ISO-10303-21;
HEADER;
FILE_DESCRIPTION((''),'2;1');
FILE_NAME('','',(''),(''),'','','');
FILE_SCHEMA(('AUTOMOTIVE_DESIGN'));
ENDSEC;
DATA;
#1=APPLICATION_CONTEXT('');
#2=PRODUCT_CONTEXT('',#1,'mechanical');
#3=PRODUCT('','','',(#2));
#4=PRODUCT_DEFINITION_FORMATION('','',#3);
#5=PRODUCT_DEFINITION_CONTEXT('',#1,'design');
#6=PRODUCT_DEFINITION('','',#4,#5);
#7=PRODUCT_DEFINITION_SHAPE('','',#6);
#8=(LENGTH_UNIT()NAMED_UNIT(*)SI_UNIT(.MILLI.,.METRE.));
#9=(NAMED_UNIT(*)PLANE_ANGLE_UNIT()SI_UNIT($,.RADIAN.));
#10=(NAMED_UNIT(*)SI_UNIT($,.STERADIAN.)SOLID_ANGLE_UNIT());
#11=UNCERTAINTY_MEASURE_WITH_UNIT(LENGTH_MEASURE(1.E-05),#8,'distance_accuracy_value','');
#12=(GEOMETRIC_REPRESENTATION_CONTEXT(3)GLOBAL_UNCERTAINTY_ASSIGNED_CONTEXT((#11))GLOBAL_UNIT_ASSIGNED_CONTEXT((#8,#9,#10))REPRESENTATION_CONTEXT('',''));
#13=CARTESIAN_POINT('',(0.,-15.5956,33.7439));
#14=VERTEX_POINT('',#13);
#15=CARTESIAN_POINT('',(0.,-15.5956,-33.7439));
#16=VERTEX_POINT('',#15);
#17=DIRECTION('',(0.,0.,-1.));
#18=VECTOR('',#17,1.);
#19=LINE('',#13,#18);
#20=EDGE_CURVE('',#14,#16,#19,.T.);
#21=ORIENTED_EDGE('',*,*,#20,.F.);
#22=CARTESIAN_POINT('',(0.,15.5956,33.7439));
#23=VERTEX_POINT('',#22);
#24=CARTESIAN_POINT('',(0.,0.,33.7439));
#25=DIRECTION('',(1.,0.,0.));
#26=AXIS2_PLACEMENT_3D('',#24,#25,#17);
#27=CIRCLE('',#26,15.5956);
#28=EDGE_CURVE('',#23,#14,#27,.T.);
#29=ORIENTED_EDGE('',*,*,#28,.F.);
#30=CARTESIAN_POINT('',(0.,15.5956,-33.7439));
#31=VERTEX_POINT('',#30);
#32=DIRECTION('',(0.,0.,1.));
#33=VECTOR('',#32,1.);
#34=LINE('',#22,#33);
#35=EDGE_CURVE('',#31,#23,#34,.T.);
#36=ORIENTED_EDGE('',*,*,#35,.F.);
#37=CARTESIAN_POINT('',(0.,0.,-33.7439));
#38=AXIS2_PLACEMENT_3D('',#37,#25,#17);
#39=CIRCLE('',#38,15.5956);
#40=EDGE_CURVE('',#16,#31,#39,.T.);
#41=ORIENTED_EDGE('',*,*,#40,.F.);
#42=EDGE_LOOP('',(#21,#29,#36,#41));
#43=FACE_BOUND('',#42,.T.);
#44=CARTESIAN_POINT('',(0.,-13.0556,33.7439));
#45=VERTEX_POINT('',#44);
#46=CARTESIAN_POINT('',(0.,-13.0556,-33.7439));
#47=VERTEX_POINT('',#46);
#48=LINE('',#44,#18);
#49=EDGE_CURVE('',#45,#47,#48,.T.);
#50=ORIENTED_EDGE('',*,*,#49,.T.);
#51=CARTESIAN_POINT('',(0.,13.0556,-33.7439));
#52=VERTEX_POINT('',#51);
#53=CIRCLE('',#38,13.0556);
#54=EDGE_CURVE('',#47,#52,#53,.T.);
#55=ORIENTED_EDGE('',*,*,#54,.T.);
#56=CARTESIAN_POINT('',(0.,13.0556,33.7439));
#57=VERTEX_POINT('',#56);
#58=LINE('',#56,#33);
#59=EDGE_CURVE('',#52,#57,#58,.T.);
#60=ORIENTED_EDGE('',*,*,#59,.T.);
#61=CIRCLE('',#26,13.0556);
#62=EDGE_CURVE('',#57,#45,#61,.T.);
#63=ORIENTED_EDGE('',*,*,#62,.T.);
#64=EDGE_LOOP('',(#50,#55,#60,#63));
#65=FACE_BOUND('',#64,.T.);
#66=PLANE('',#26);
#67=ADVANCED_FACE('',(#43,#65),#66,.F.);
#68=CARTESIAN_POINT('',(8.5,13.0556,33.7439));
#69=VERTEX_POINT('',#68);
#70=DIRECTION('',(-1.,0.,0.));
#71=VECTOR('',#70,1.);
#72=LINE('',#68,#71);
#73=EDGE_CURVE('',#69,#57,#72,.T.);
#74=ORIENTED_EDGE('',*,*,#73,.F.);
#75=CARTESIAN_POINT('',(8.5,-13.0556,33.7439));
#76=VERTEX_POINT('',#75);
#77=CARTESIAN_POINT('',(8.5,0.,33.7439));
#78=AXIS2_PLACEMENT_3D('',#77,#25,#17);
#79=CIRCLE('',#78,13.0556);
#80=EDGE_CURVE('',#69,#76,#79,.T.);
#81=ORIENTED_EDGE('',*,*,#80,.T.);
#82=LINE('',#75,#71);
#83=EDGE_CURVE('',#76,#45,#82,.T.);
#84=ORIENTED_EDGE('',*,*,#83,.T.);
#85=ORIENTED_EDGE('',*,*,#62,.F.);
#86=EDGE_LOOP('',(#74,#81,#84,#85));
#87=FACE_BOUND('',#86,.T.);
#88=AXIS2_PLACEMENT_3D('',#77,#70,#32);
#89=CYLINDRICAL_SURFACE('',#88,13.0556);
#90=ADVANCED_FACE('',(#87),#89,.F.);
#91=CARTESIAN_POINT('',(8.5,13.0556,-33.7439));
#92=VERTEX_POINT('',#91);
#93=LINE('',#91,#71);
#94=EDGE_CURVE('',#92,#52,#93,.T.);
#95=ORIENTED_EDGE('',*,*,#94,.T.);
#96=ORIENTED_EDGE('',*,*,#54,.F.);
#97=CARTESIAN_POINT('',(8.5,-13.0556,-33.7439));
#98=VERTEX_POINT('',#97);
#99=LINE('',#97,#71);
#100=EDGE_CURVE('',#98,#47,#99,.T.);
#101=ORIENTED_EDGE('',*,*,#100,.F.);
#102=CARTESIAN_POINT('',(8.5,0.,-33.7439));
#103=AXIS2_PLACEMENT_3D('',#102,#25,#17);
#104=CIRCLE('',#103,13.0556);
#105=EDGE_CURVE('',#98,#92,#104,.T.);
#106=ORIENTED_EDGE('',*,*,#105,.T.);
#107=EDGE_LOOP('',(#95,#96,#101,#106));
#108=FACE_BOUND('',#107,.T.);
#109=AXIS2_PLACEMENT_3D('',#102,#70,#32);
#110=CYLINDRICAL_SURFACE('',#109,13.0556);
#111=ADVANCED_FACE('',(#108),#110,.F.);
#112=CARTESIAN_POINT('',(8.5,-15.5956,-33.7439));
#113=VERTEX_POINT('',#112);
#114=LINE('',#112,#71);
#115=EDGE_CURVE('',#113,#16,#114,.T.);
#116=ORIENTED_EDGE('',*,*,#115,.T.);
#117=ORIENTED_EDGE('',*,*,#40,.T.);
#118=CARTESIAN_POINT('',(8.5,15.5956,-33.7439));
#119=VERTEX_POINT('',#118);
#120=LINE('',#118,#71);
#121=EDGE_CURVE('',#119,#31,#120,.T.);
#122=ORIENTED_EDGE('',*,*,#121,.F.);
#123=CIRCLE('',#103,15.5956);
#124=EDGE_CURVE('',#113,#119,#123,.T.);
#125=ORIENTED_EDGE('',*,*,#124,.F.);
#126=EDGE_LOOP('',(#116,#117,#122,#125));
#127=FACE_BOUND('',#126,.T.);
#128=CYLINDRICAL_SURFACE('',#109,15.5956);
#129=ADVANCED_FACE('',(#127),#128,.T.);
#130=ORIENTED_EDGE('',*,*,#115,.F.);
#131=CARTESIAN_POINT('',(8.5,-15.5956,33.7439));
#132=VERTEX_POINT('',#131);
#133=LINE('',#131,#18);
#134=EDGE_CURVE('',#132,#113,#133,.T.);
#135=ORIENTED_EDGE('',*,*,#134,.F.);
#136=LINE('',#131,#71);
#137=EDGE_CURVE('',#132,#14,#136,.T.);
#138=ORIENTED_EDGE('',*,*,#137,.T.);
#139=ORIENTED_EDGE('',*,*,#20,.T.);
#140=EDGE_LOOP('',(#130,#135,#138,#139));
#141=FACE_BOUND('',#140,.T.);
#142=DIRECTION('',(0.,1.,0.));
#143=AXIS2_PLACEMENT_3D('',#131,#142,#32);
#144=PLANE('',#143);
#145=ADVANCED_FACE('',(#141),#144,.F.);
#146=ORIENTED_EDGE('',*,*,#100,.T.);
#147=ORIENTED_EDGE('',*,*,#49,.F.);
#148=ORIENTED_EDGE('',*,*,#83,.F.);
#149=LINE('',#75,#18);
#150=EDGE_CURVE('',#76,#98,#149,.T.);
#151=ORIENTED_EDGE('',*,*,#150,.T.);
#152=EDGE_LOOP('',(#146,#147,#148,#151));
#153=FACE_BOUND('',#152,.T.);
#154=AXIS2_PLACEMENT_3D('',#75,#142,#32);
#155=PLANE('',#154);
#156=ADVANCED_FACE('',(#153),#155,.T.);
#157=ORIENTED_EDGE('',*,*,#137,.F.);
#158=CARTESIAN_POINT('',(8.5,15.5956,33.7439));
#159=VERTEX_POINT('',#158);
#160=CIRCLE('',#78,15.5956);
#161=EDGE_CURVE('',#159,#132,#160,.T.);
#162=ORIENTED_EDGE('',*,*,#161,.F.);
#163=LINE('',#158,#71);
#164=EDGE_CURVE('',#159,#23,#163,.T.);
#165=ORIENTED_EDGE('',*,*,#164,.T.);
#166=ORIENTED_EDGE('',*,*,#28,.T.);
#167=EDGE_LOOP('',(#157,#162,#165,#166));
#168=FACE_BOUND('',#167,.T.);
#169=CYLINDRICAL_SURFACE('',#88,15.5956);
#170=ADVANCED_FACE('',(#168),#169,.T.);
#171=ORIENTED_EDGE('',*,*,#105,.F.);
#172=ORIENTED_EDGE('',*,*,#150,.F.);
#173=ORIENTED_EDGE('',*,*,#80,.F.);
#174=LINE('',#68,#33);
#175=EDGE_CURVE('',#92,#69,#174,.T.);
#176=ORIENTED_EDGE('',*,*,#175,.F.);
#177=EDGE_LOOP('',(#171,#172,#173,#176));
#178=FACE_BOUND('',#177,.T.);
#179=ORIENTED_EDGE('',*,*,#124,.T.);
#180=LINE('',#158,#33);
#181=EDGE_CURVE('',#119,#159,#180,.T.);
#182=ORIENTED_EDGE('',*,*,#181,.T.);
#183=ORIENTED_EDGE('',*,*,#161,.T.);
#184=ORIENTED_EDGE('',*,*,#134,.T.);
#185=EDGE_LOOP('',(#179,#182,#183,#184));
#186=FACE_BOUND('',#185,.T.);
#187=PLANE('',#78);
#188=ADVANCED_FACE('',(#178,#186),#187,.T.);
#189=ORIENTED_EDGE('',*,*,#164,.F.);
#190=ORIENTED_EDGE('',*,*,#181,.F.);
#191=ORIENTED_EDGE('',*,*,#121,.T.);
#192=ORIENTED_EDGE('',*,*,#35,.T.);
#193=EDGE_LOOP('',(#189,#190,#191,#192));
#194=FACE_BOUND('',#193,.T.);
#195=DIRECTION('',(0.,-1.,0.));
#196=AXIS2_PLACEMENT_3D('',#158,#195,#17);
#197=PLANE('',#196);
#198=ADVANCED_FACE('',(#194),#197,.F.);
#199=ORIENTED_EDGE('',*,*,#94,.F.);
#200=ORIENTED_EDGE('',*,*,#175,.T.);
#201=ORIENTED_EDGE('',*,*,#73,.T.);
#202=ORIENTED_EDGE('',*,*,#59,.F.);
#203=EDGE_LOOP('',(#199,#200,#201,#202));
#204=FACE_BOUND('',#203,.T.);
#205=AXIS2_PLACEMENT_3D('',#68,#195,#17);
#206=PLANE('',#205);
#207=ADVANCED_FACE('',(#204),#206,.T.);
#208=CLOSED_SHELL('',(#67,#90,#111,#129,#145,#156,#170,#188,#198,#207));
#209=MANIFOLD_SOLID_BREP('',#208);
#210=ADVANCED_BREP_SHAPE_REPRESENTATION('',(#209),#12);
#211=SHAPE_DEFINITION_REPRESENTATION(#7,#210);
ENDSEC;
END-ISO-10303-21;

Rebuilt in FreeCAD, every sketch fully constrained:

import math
import FreeCAD as App
import Part
import Sketcher

V = App.Vector
Q = App.Units.Quantity

doc = App.newDocument("Part")
body = doc.addObject("PartDesign::Body", "Body")

# Sketch on YZ plane
sketch1 = body.newObject("Sketcher::SketchObject", "Sketch")
sketch1.AttachmentSupport = (doc.getObject("YZ_Plane"), [""])
sketch1.MapMode = "FlatFace"
sketch1.addGeometry([
    Part.LineSegment(V(-16, 34, 0), V(-16, -34, 0)),  # 0
    Part.ArcOfCircle(Part.Circle(V(0, -34, 0), V(0, 0, 1), 16), math.radians(180), math.radians(360)),  # 1
    Part.LineSegment(V(16, -34, 0), V(16, 34, 0)),  # 2
    Part.ArcOfCircle(Part.Circle(V(0, 34, 0), V(0, 0, 1), 16), math.radians(0), math.radians(180)),  # 3
    Part.LineSegment(V(-13, -34, 0), V(-13, 34, 0)),  # 4
    Part.ArcOfCircle(Part.Circle(V(0, 34, 0), V(0, 0, 1), 13), math.radians(0), math.radians(180)),  # 5
    Part.LineSegment(V(13, 34, 0), V(13, -34, 0)),  # 6
    Part.ArcOfCircle(Part.Circle(V(0, -34, 0), V(0, 0, 1), 13), math.radians(180), math.radians(360)),  # 7
], False)
sketch1.addConstraint([
    Sketcher.Constraint("Tangent", 0, 2, 1, 1),
    Sketcher.Constraint("Tangent", 1, 2, 2, 1),
    Sketcher.Constraint("Tangent", 2, 2, 3, 1),
    Sketcher.Constraint("Tangent", 3, 2, 0, 1),
    Sketcher.Constraint("Tangent", 4, 2, 5, 2),
    Sketcher.Constraint("Tangent", 5, 1, 6, 1),
    Sketcher.Constraint("Tangent", 6, 2, 7, 2),
    Sketcher.Constraint("Tangent", 7, 1, 4, 1),
    Sketcher.Constraint("Vertical", 0),
    Sketcher.Constraint("Vertical", 2),
    Sketcher.Constraint("Vertical", 4),
    Sketcher.Constraint("Vertical", 6),
    Sketcher.Constraint("Coincident", 5, 3, 3, 3),
    Sketcher.Constraint("Symmetric", 1, 3, 3, 3, -1, 1),
    Sketcher.Constraint("Horizontal", 7, 3, 0, 2),
    Sketcher.Constraint("Radius", 1, Q("0.614 in")),
    Sketcher.Constraint("Radius", 5, Q("0.514 in")),
    Sketcher.Constraint("DistanceY", 0, 2, 0, 1, Q("2.657 in")),
])
pad1 = body.newObject("PartDesign::Pad", "Pad")
pad1.Profile = sketch1
pad1.Length = 8.5

doc.recompute()
